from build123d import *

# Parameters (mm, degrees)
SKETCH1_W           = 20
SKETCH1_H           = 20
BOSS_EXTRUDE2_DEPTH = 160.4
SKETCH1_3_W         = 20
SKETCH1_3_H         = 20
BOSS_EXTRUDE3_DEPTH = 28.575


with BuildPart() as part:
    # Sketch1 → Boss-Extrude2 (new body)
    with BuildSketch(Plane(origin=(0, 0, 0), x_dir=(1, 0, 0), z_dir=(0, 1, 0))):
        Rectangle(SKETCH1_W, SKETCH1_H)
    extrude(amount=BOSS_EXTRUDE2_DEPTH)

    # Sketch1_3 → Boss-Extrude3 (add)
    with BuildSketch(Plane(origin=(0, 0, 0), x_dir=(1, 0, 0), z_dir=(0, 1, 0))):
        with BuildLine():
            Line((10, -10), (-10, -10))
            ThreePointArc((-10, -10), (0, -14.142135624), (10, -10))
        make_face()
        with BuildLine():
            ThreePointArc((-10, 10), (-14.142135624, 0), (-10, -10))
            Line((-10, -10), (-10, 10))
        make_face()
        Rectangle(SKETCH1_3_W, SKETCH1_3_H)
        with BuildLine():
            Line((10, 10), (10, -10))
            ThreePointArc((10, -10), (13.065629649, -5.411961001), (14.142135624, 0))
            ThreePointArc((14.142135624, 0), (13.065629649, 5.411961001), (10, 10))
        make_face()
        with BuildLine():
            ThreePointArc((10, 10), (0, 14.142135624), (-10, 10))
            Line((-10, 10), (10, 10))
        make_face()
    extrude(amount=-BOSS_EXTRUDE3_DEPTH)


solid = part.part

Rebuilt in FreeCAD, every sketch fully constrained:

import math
import FreeCAD as App
import Part
import Sketcher

doc = App.newDocument("Part")
body = doc.addObject("PartDesign::Body", "Body")

# Sketch on XZ plane
sketch1 = doc.addObject("Sketcher::SketchObject", "Sketch")
body.addObject(sketch1)
sketch1.AttachmentSupport = (doc.XZ_Plane, [""])
sketch1.MapMode = "FlatFace"
sketch1.addGeometry(Part.LineSegment(App.Vector(-10, -10, 0), App.Vector(-10, 10, 0)), False)
sketch1.addGeometry(Part.LineSegment(App.Vector(-10, 10, 0), App.Vector(10, 10, 0)), False)
sketch1.addGeometry(Part.LineSegment(App.Vector(10, 10, 0), App.Vector(10, -10, 0)), False)
sketch1.addGeometry(Part.LineSegment(App.Vector(10, -10, 0), App.Vector(-10, -10, 0)), False)
sketch1.addConstraint(Sketcher.Constraint("Coincident", 0, 2, 1, 1))
sketch1.addConstraint(Sketcher.Constraint("Coincident", 1, 2, 2, 1))
sketch1.addConstraint(Sketcher.Constraint("Coincident", 2, 2, 3, 1))
sketch1.addConstraint(Sketcher.Constraint("Coincident", 3, 2, 0, 1))
sketch1.addConstraint(Sketcher.Constraint("Vertical", 0))
sketch1.addConstraint(Sketcher.Constraint("Horizontal", 1))
sketch1.addConstraint(Sketcher.Constraint("Vertical", 2))
sketch1.addConstraint(Sketcher.Constraint("Horizontal", 3))
sketch1.addConstraint(Sketcher.Constraint("Symmetric", 0, 2, 2, 2, -1, 1))
sketch1.addConstraint(Sketcher.Constraint("Equal", 3, 0))
sketch1.addConstraint(Sketcher.Constraint("DistanceX", 1, 1, 1, 2, 20.0))
pad1 = doc.addObject("PartDesign::Pad", "Pad")
body.addObject(pad1)
pad1.Profile = sketch1
pad1.Length = 160.4
pad1.Reversed = True

# Sketch on XZ plane
sketch2 = doc.addObject("Sketcher::SketchObject", "Sketch001")
body.addObject(sketch2)
sketch2.AttachmentSupport = (doc.XZ_Plane, [""])
sketch2.MapMode = "FlatFace"
sketch2.addGeometry(Part.ArcOfCircle(Part.Circle(App.Vector(0, 0, 0), App.Vector(0, 0, 1), 14.142136), math.radians(45), math.radians(135)), False)
sketch2.addGeometry(Part.ArcOfCircle(Part.Circle(App.Vector(0, 0, 0), App.Vector(0, 0, 1), 14.142136), math.radians(0), math.radians(45)), False)
sketch2.addGeometry(Part.ArcOfCircle(Part.Circle(App.Vector(0, 0, 0), App.Vector(0, 0, 1), 14.142136), math.radians(-45), math.radians(0)), False)
sketch2.addGeometry(Part.ArcOfCircle(Part.Circle(App.Vector(0, 0, 0), App.Vector(0, 0, 1), 14.142136), math.radians(-135), math.radians(-45)), False)
sketch2.addGeometry(Part.ArcOfCircle(Part.Circle(App.Vector(0, 0, 0), App.Vector(0, 0, 1), 14.142136), math.radians(135), math.radians(225)), False)
sketch2.addConstraint(Sketcher.Constraint("Tangent", 0, 1, 1, 2))
sketch2.addConstraint(Sketcher.Constraint("Tangent", 1, 1, 2, 2))
sketch2.addConstraint(Sketcher.Constraint("Tangent", 2, 1, 3, 2))
sketch2.addConstraint(Sketcher.Constraint("Tangent", 3, 1, 4, 2))
sketch2.addConstraint(Sketcher.Constraint("Tangent", 4, 1, 0, 2))
sketch2.addConstraint(Sketcher.Constraint("Coincident", 0, 3, -1, 1))
sketch2.addConstraint(Sketcher.Constraint("Coincident", 2, 3, -1, 1))
sketch2.addConstraint(Sketcher.Constraint("PointOnObject", 1, 1, -1))
sketch2.addConstraint(Sketcher.Constraint("Horizontal", 2, 1, 3, 1))
sketch2.addConstraint(Sketcher.Constraint("Horizontal", 0, 1, 4, 1))
sketch2.addConstraint(Sketcher.Constraint("Vertical", 0, 1, 2, 1))
sketch2.addConstraint(Sketcher.Constraint("DistanceX", -1, 1, 0, 1, 10.0))
sketch2.addConstraint(Sketcher.Constraint("DistanceY", -1, 1, 0, 1, 10.0))
pad2 = doc.addObject("PartDesign::Pad", "Pad001")
body.addObject(pad2)
pad2.Profile = sketch2
pad2.Length = 28.575

doc.recompute()
